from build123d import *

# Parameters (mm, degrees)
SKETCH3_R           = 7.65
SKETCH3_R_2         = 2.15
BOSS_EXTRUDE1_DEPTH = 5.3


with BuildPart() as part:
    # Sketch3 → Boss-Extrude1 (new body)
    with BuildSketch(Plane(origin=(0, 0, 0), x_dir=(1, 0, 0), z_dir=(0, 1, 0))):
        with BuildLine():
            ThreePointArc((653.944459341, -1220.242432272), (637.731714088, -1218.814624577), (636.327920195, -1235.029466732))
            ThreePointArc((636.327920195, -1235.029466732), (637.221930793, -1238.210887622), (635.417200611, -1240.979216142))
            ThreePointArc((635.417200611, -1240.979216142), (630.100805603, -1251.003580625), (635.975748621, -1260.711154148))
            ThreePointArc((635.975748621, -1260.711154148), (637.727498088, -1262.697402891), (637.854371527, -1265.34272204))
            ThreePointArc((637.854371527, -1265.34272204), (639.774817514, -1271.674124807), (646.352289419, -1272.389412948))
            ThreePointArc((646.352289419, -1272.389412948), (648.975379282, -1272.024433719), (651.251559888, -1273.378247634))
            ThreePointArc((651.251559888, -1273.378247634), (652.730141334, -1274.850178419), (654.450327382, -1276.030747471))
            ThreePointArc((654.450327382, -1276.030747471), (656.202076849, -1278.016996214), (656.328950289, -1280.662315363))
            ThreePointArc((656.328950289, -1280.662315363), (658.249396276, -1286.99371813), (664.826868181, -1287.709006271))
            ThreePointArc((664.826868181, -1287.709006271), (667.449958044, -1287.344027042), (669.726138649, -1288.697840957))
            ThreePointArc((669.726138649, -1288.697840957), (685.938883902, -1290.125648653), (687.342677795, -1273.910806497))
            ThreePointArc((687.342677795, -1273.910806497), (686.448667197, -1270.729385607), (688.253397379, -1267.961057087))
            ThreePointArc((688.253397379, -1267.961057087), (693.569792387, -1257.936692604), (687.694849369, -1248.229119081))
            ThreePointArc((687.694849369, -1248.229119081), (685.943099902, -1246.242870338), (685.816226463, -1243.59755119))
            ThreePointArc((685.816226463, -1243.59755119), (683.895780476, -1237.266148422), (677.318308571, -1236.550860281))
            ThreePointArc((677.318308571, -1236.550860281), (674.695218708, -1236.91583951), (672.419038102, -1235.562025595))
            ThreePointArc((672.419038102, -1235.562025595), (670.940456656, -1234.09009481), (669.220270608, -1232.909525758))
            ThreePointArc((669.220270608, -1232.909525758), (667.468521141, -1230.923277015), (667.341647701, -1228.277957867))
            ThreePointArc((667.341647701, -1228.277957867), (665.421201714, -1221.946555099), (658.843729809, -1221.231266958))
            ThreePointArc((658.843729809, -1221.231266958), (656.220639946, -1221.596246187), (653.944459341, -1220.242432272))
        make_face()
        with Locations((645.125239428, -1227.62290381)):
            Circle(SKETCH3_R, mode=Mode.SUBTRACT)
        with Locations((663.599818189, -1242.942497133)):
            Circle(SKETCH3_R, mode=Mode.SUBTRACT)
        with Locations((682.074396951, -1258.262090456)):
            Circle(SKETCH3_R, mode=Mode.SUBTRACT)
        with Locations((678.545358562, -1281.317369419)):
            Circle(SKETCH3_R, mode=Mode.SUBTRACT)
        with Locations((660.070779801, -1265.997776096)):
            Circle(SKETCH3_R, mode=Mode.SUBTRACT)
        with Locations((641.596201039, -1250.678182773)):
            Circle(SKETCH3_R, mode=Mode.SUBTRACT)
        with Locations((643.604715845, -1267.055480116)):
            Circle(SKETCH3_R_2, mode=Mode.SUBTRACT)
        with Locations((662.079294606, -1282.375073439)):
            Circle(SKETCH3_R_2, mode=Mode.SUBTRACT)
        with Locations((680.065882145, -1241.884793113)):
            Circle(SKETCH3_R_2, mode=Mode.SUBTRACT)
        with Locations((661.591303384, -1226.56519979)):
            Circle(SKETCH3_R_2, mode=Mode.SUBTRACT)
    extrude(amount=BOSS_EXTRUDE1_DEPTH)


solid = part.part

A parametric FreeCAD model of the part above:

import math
import FreeCAD as App
import Part
import Sketcher
Q = App.Units.Quantity

doc = App.newDocument("Part")
params = doc.addObject("Spreadsheet::Sheet", "Params")
for row, (alias, value) in enumerate([
    ("sketch1_radius", "4 mm"),
    ("sketch1_radius2", "6 mm"),
    ("sketch1_diameter", "4.3 mm"),
    ("sketch1_diameter2", "15.3 mm"),
    ("sketch1_radius3", "11.5 mm"),
    ("pad1_length", "5.3 mm"),
], start=1):
    params.set(f"A{row}", alias)
    params.set(f"B{row}", "=" + value)
    params.setAlias(f"B{row}", alias)

body = doc.addObject("PartDesign::Body", "Body")

sketch1 = body.newObject("Sketcher::SketchObject", "Sketch")
sketch1.AttachmentSupport = (doc.getObject("XZ_Plane"), [""])
sketch1.MapMode = "FlatFace"
sketch1.addGeometry([
    Part.ArcOfCircle(Part.Circle(App.Vector(645.1, 1227.6, 0), App.Vector(0, 0, 1), 11.5), math.radians(140), math.radians(320)),
    Part.ArcOfCircle(Part.Circle(App.Vector(633.3, 1237.6, 0), App.Vector(0, 0, 1), 4), math.radians(-40), math.radians(57)),
    Part.ArcOfCircle(Part.Circle(App.Vector(641.6, 1250.7, 0), App.Vector(0, 0, 1), 11.5), math.radians(119), math.radians(237)),
    Part.ArcOfCircle(Part.Circle(App.Vector(634, 1264.2, 0), App.Vector(0, 0, 1), 4), math.radians(-61), math.radians(17)),
    Part.ArcOfCircle(Part.Circle(App.Vector(643.6, 1267.1, 0), App.Vector(0, 0, 1), 6), math.radians(63), math.radians(197)),
    Part.ArcOfCircle(Part.Circle(App.Vector(648.2, 1275.9, 0), App.Vector(0, 0, 1), 4), math.radians(-117), math.radians(-40)),
    Part.ArcOfCircle(Part.Circle(App.Vector(660.1, 1266, 0), App.Vector(0, 0, 1), 11.5), math.radians(119), math.radians(140)),
    Part.ArcOfCircle(Part.Circle(App.Vector(652.5, 1279.5, 0), App.Vector(0, 0, 1), 4), math.radians(-61), math.radians(17)),
    Part.ArcOfCircle(Part.Circle(App.Vector(662.1, 1282.4, 0), App.Vector(0, 0, 1), 6), math.radians(63), math.radians(197)),
    Part.ArcOfCircle(Part.Circle(App.Vector(666.7, 1291.3, 0), App.Vector(0, 0, 1), 4), math.radians(-117), math.radians(-40)),
    Part.ArcOfCircle(Part.Circle(App.Vector(678.5, 1281.3, 0), App.Vector(0, 0, 1), 11.5), math.radians(-40), math.radians(140)),
    Part.ArcOfCircle(Part.Circle(App.Vector(690.4, 1271.3, 0), App.Vector(0, 0, 1), 4), math.radians(140), math.radians(237)),
    Part.ArcOfCircle(Part.Circle(App.Vector(682.1, 1258.3, 0), App.Vector(0, 0, 1), 11.5), math.radians(-61), math.radians(57)),
    Part.ArcOfCircle(Part.Circle(App.Vector(689.6, 1244.7, 0), App.Vector(0, 0, 1), 4), math.radians(119), math.radians(197)),
    Part.ArcOfCircle(Part.Circle(App.Vector(680.1, 1241.9, 0), App.Vector(0, 0, 1), 6), math.radians(-117), math.radians(17)),
    Part.ArcOfCircle(Part.Circle(App.Vector(675.5, 1233, 0), App.Vector(0, 0, 1), 4), math.radians(63), math.radians(140)),
    Part.ArcOfCircle(Part.Circle(App.Vector(663.6, 1242.9, 0), App.Vector(0, 0, 1), 11.5), math.radians(-61), math.radians(-40)),
    Part.ArcOfCircle(Part.Circle(App.Vector(671.2, 1229.4, 0), App.Vector(0, 0, 1), 4), math.radians(119), math.radians(197)),
    Part.ArcOfCircle(Part.Circle(App.Vector(661.6, 1226.6, 0), App.Vector(0, 0, 1), 6), math.radians(-117), math.radians(17)),
    Part.ArcOfCircle(Part.Circle(App.Vector(657, 1217.7, 0), App.Vector(0, 0, 1), 4), math.radians(63), math.radians(140)),
    Part.Circle(App.Vector(643.6, 1267.1, 0), App.Vector(0, 0, 1), 2.1),
    Part.Circle(App.Vector(660.1, 1266, 0), App.Vector(0, 0, 1), 7.7),
    Part.Circle(App.Vector(662.1, 1282.4, 0), App.Vector(0, 0, 1), 2.1),
    Part.Circle(App.Vector(678.5, 1281.3, 0), App.Vector(0, 0, 1), 7.7),
    Part.Circle(App.Vector(682.1, 1258.3, 0), App.Vector(0, 0, 1), 7.7),
    Part.Circle(App.Vector(641.6, 1250.7, 0), App.Vector(0, 0, 1), 7.7),
    Part.Circle(App.Vector(645.1, 1227.6, 0), App.Vector(0, 0, 1), 7.7),
    Part.Circle(App.Vector(661.6, 1226.6, 0), App.Vector(0, 0, 1), 2.1),
    Part.Circle(App.Vector(663.6, 1242.9, 0), App.Vector(0, 0, 1), 7.7),
    Part.Circle(App.Vector(680.1, 1241.9, 0), App.Vector(0, 0, 1), 2.1),
], False)
sketch1.addConstraint([
    Sketcher.Constraint("Tangent", 0, 1, 1, 1),
    Sketcher.Constraint("Tangent", 1, 2, 2, 2),
    Sketcher.Constraint("Tangent", 2, 1, 3, 1),
    Sketcher.Constraint("Tangent", 3, 2, 4, 2),
    Sketcher.Constraint("Tangent", 4, 1, 5, 1),
    Sketcher.Constraint("Tangent", 5, 2, 6, 2),
    Sketcher.Constraint("Tangent", 6, 1, 7, 1),
    Sketcher.Constraint("Tangent", 7, 2, 8, 2),
    Sketcher.Constraint("Tangent", 8, 1, 9, 1),
    Sketcher.Constraint("Tangent", 9, 2, 10, 2),
    Sketcher.Constraint("Tangent", 10, 1, 11, 1),
    Sketcher.Constraint("Tangent", 11, 2, 12, 2),
    Sketcher.Constraint("Tangent", 12, 1, 13, 1),
    Sketcher.Constraint("Tangent", 13, 2, 14, 2),
    Sketcher.Constraint("Tangent", 14, 1, 15, 1),
    Sketcher.Constraint("Tangent", 15, 2, 16, 2),
    Sketcher.Constraint("Tangent", 16, 1, 17, 1),
    Sketcher.Constraint("Tangent", 17, 2, 18, 2),
    Sketcher.Constraint("Tangent", 18, 1, 19, 1),
    Sketcher.Constraint("Tangent", 19, 2, 0, 2),
    Sketcher.Constraint("Coincident", 20, 3, 4, 3),
    Sketcher.Constraint("Coincident", 21, 3, 6, 3),
    Sketcher.Constraint("Coincident", 22, 3, 8, 3),
    Sketcher.Constraint("Coincident", 23, 3, 10, 3),
    Sketcher.Constraint("Coincident", 24, 3, 12, 3),
    Sketcher.Constraint("Coincident", 25, 3, 2, 3),
    Sketcher.Constraint("Coincident", 26, 3, 0, 3),
    Sketcher.Constraint("Coincident", 27, 3, 18, 3),
    Sketcher.Constraint("Coincident", 28, 3, 16, 3),
    Sketcher.Constraint("Coincident", 29, 3, 14, 3),
    Sketcher.Constraint("Equal", 0, 2),
    Sketcher.Constraint("Equal", 1, 3),
    Sketcher.Constraint("Equal", 3, 5),
    Sketcher.Constraint("Equal", 2, 6),
    Sketcher.Constraint("Equal", 5, 7),
    Sketcher.Constraint("Equal", 4, 8),
    Sketcher.Constraint("Equal", 7, 9),
    Sketcher.Constraint("Equal", 6, 10),
    Sketcher.Constraint("Equal", 9, 11),
    Sketcher.Constraint("Equal", 10, 12),
    Sketcher.Constraint("Equal", 11, 13),
    Sketcher.Constraint("Equal", 8, 14),
    Sketcher.Constraint("Equal", 13, 15),
    Sketcher.Constraint("Equal", 12, 16),
    Sketcher.Constraint("Equal", 15, 17),
    Sketcher.Constraint("Equal", 14, 18),
    Sketcher.Constraint("Equal", 17, 19),
    Sketcher.Constraint("Equal", 20, 22),
    Sketcher.Constraint("Equal", 21, 23),
    Sketcher.Constraint("Equal", 23, 24),
    Sketcher.Constraint("Equal", 24, 25),
    Sketcher.Constraint("Equal", 25, 26),
    Sketcher.Constraint("Equal", 22, 27),
    Sketcher.Constraint("Equal", 26, 28),
    Sketcher.Constraint("Equal", 27, 29),
    Sketcher.Constraint("Radius", 1, Q("4 mm")),
    Sketcher.Constraint("Radius", 4, Q("6 mm")),
    Sketcher.Constraint("Diameter", 20, Q("4.3 mm")),
    Sketcher.Constraint("Diameter", 21, Q("15.3 mm")),
    Sketcher.Constraint("Radius", 0, Q("11.5 mm")),
    Sketcher.Constraint("DistanceY", 5, 3, 10, 3, Q("5.372001 mm")),
    Sketcher.Constraint("DistanceY", 0, 3, 15, 3, Q("5.372001 mm")),
    Sketcher.Constraint("DistanceX", 1, 2, 2, 3, Q("6.179 mm")),
    Sketcher.Constraint("DistanceX", 12, 3, 11, 2, Q("6.179 mm")),
    Sketcher.Constraint("DistanceX", -1, 1, 2, 3, Q("641.596201 mm")),
    Sketcher.Constraint("DistanceY", -1, 1, 18, 3, Q("1226.5652 mm")),
    Sketcher.Constraint("DistanceY", 2, 3, 3, 3, Q("13.522701 mm")),
    Sketcher.Constraint("DistanceY", 6, 3, 7, 3, Q("13.522701 mm")),
    Sketcher.Constraint("DistanceY", 13, 3, 12, 3, Q("13.522701 mm")),
    Sketcher.Constraint("DistanceY", 17, 3, 16, 3, Q("13.522701 mm")),
    Sketcher.Constraint("DistanceY", 5, 2, 6, 1, Q("2.6525 mm")),
    Sketcher.Constraint("DistanceY", 16, 1, 15, 2, Q("2.6525 mm")),
    Sketcher.Constraint("DistanceX", -1, 1, 0, 3, Q("645.125239 mm")),
    Sketcher.Constraint("DistanceY", -1, 1, 4, 3, Q("1267.05548 mm")),
    Sketcher.Constraint("DistanceY", -1, 1, 5, 3, Q("1275.945368 mm")),
    Sketcher.Constraint("DistanceX", -1, 1, 6, 3, Q("660.07078 mm")),
    Sketcher.Constraint("DistanceY", -1, 1, 9, 3, Q("1291.264961 mm")),
    Sketcher.Constraint("DistanceX", -1, 1, 10, 3, Q("678.545359 mm")),
    Sketcher.Constraint("DistanceY", -1, 1, 11, 3, Q("1271.334611 mm")),
    Sketcher.Constraint("DistanceX", -1, 1, 16, 3, Q("663.599818 mm")),
])
sketch1.setExpression("Constraints[55]", "Params.sketch1_radius")
sketch1.setExpression("Constraints[56]", "Params.sketch1_radius2")
sketch1.setExpression("Constraints[57]", "Params.sketch1_diameter")
sketch1.setExpression("Constraints[58]", "Params.sketch1_diameter2")
sketch1.setExpression("Constraints[59]", "Params.sketch1_radius3")
pad1 = body.newObject("PartDesign::Pad", "Pad")
pad1.Profile = sketch1
pad1.setExpression("Length", "Params.pad1_length")
pad1.Reversed = True

doc.recompute()
